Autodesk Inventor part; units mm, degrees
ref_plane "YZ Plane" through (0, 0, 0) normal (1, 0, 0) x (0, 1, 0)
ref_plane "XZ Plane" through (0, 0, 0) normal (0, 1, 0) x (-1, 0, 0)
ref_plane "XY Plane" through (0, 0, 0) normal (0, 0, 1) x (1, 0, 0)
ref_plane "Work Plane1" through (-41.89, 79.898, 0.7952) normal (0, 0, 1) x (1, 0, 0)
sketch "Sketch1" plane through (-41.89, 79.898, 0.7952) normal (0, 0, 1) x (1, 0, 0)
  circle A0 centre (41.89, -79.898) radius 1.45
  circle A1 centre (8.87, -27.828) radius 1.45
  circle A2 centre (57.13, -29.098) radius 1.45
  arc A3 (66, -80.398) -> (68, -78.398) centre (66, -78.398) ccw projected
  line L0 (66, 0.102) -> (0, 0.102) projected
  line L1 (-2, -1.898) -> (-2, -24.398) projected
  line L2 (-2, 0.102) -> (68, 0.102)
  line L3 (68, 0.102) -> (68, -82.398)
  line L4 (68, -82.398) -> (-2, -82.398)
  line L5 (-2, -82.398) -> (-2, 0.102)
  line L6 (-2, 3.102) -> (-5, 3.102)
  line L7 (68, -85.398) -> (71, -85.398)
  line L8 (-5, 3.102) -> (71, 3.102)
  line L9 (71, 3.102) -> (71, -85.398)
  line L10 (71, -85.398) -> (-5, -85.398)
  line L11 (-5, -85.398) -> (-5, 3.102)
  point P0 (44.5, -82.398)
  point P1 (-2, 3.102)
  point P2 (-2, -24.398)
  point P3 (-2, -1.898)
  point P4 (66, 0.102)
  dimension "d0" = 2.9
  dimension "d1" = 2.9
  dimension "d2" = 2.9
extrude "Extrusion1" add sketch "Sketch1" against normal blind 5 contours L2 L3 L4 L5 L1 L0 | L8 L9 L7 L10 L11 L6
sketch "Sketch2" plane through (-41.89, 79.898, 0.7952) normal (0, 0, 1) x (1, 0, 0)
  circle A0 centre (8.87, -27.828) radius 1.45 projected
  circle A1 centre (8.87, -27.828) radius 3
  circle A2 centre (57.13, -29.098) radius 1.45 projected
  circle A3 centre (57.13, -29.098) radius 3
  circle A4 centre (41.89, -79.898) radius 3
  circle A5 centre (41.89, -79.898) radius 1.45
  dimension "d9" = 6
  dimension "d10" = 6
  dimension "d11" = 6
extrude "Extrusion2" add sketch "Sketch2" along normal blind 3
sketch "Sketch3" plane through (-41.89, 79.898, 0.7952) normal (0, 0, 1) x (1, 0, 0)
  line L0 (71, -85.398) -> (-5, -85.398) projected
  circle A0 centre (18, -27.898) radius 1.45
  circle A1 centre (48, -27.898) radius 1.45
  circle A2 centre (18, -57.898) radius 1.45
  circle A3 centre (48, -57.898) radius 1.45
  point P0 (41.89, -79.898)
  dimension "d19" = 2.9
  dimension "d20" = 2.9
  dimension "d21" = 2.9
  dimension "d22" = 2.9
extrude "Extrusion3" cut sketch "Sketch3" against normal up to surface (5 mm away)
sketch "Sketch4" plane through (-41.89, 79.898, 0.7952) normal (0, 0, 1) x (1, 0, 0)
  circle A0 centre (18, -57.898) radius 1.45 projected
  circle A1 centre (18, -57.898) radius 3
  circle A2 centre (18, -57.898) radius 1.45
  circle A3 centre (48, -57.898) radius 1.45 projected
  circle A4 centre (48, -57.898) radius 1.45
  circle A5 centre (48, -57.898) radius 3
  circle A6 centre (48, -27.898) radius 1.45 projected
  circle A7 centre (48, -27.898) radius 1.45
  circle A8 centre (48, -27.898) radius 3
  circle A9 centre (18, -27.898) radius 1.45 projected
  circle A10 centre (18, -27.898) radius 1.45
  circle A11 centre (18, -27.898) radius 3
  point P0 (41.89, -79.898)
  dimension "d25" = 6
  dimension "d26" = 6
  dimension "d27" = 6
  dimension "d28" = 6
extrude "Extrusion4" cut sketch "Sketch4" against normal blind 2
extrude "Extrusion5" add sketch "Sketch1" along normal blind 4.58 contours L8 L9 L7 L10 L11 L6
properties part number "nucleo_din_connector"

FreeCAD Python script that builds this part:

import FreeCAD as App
import Part
import Sketcher


def add_polygon(sketch, points):
    """Adds a closed chain of lines whose ends are joined by coincident constraints."""
    first, n = sketch.GeometryCount, len(points)
    for a, b in zip(points, points[1:] + points[:1]):
        sketch.addGeometry(Part.LineSegment(App.Vector(*a, 0), App.Vector(*b, 0)), False)
    for i in range(n):
        sketch.addConstraint(Sketcher.Constraint("Coincident", first + i, 2, first + (i + 1) % n, 1))

doc = App.newDocument("Part")
params = doc.addObject("Spreadsheet::Sheet", "Params")
for row, (alias, value) in enumerate([
    ("sketch1_diameter", "2.9 mm"),
    ("sketch1_width", "76 mm"),
    ("sketch1_height", "88.5 mm"),
    ("pad1_length", "5 mm"),
    ("sketch2_diameter", "6 mm"),
    ("sketch2_diameter2", "2.9 mm"),
    ("pad2_length", "3 mm"),
    ("sketch3_diameter", "2.9 mm"),
    ("pocket1_length", "5 mm"),
    ("sketch4_diameter", "6 mm"),
    ("sketch4_diameter2", "2.9 mm"),
    ("pocket2_length", "2 mm"),
    ("sketch5_width", "76 mm"),
    ("sketch5_width2", "70 mm"),
    ("sketch5_height", "88.5 mm"),
    ("sketch5_height2", "82.5 mm"),
    ("pad3_length", "4.58 mm"),
], start=1):
    params.set(f"A{row}", alias)
    params.set(f"B{row}", "=" + value)
    params.setAlias(f"B{row}", alias)

body = doc.addObject("PartDesign::Body", "Body")

# Sketch on XY plane
sketch1 = doc.addObject("Sketcher::SketchObject", "Sketch")
body.addObject(sketch1)
sketch1.AttachmentSupport = (doc.XY_Plane, [""])
sketch1.MapMode = "FlatFace"
sketch1.AttachmentOffset = App.Placement(App.Vector(0, 0, 0.7952), App.Rotation())
add_polygon(sketch1, [(29.1, 83), (-46.9, 83), (-46.9, -5.5), (29.1, -5.5)])  # lines 0-3
sketch1.addGeometry(Part.Circle(App.Vector(0, 0, 0), App.Vector(0, 0, 1), 1.4), False)  # 4
sketch1.addGeometry(Part.Circle(App.Vector(-33, 52.1, 0), App.Vector(0, 0, 1), 1.4), False)  # 5
sketch1.addGeometry(Part.Circle(App.Vector(15.2, 50.8, 0), App.Vector(0, 0, 1), 1.4), False)  # 6
sketch1.addConstraint(Sketcher.Constraint("Horizontal", 0))
sketch1.addConstraint(Sketcher.Constraint("Vertical", 1))
sketch1.addConstraint(Sketcher.Constraint("Horizontal", 2))
sketch1.addConstraint(Sketcher.Constraint("Vertical", 3))
sketch1.addConstraint(Sketcher.Constraint("Coincident", 4, 3, -1, 1))
sketch1.addConstraint(Sketcher.Constraint("Equal", 4, 5))
sketch1.addConstraint(Sketcher.Constraint("Equal", 5, 6))
sketch1.addConstraint(Sketcher.Constraint("Diameter", 4, 2.9))
sketch1.addConstraint(Sketcher.Constraint("DistanceX", 0, 2, 0, 1, 76.0))
sketch1.addConstraint(Sketcher.Constraint("DistanceY", 1, 2, 1, 1, 88.5))
sketch1.addConstraint(Sketcher.Constraint("DistanceY", -1, 1, 0, 2, 83.0))
sketch1.addConstraint(Sketcher.Constraint("DistanceY", -1, 1, 6, 3, 50.8))
sketch1.addConstraint(Sketcher.Constraint("DistanceX", 5, 3, -1, 1, 33.02))
sketch1.addConstraint(Sketcher.Constraint("DistanceY", -1, 1, 5, 3, 52.07))
sketch1.addConstraint(Sketcher.Constraint("DistanceX", -1, 1, 6, 3, 15.24))
sketch1.addConstraint(Sketcher.Constraint("DistanceX", 0, 2, -1, 1, 46.89))
sketch1.setExpression("Constraints[11]", "Params.sketch1_diameter")
sketch1.setExpression("Constraints[12]", "Params.sketch1_width")
sketch1.setExpression("Constraints[13]", "Params.sketch1_height")
pad1 = doc.addObject("PartDesign::Pad", "Pad")
body.addObject(pad1)
pad1.Profile = sketch1
pad1.setExpression("Length", "Params.pad1_length")
pad1.Reversed = True

# Sketch on XY plane
sketch2 = doc.addObject("Sketcher::SketchObject", "Sketch001")
body.addObject(sketch2)
sketch2.AttachmentSupport = (doc.XY_Plane, [""])
sketch2.MapMode = "FlatFace"
sketch2.AttachmentOffset = App.Placement(App.Vector(0, 0, 0.7952), App.Rotation())
sketch2.addGeometry(Part.Circle(App.Vector(-33, 52.1, 0), App.Vector(0, 0, 1), 3), False)
sketch2.addGeometry(Part.Circle(App.Vector(-33, 52.1, 0), App.Vector(0, 0, 1), 1.4), False)
sketch2.addGeometry(Part.Circle(App.Vector(15.2, 50.8, 0), App.Vector(0, 0, 1), 3), False)
sketch2.addGeometry(Part.Circle(App.Vector(15.2, 50.8, 0), App.Vector(0, 0, 1), 1.4), False)
sketch2.addGeometry(Part.Circle(App.Vector(0, 0, 0), App.Vector(0, 0, 1), 3), False)
sketch2.addGeometry(Part.Circle(App.Vector(0, 0, 0), App.Vector(0, 0, 1), 1.4), False)
sketch2.addConstraint(Sketcher.Constraint("Coincident", 4, 3, -1, 1))
sketch2.addConstraint(Sketcher.Constraint("Coincident", 5, 3, -1, 1))
sketch2.addConstraint(Sketcher.Constraint("Coincident", 1, 3, 0, 3))
sketch2.addConstraint(Sketcher.Constraint("Coincident", 3, 3, 2, 3))
sketch2.addConstraint(Sketcher.Constraint("Equal", 0, 2))
sketch2.addConstraint(Sketcher.Constraint("Equal", 1, 3))
sketch2.addConstraint(Sketcher.Constraint("Equal", 2, 4))
sketch2.addConstraint(Sketcher.Constraint("Equal", 3, 5))
sketch2.addConstraint(Sketcher.Constraint("Diameter", 0, 6.0))
sketch2.addConstraint(Sketcher.Constraint("Diameter", 1, 2.9))
sketch2.addConstraint(Sketcher.Constraint("DistanceY", -1, 1, 2, 3, 50.8))
sketch2.addConstraint(Sketcher.Constraint("DistanceX", 0, 3, -1, 1, 33.02))
sketch2.addConstraint(Sketcher.Constraint("DistanceY", -1, 1, 0, 3, 52.07))
sketch2.addConstraint(Sketcher.Constraint("DistanceX", -1, 1, 2, 3, 15.24))
sketch2.setExpression("Constraints[8]", "Params.sketch2_diameter")
sketch2.setExpression("Constraints[9]", "Params.sketch2_diameter2")
pad2 = doc.addObject("PartDesign::Pad", "Pad001")
body.addObject(pad2)
pad2.Profile = sketch2
pad2.setExpression("Length", "Params.pad2_length")

# Sketch on XY plane
sketch3 = doc.addObject("Sketcher::SketchObject", "Sketch002")
body.addObject(sketch3)
sketch3.AttachmentSupport = (doc.XY_Plane, [""])
sketch3.MapMode = "FlatFace"
sketch3.AttachmentOffset = App.Placement(App.Vector(0, 0, 0.7952), App.Rotation())
sketch3.addGeometry(Part.Circle(App.Vector(-23.9, 52, 0), App.Vector(0, 0, 1), 1.4), False)
sketch3.addGeometry(Part.Circle(App.Vector(6.1, 52, 0), App.Vector(0, 0, 1), 1.4), False)
sketch3.addGeometry(Part.Circle(App.Vector(-23.9, 22, 0), App.Vector(0, 0, 1), 1.4), False)
sketch3.addGeometry(Part.Circle(App.Vector(6.1, 22, 0), App.Vector(0, 0, 1), 1.4), False)
sketch3.addConstraint(Sketcher.Constraint("Equal", 0, 1))
sketch3.addConstraint(Sketcher.Constraint("Equal", 1, 2))
sketch3.addConstraint(Sketcher.Constraint("Equal", 2, 3))
sketch3.addConstraint(Sketcher.Constraint("Horizontal", 0, 3, 1, 3))
sketch3.addConstraint(Sketcher.Constraint("Horizontal", 2, 3, 3, 3))
sketch3.addConstraint(Sketcher.Constraint("Vertical", 0, 3, 2, 3))
sketch3.addConstraint(Sketcher.Constraint("Vertical", 1, 3, 3, 3))
sketch3.addConstraint(Sketcher.Constraint("Diameter", 0, 2.9))
sketch3.addConstraint(Sketcher.Constraint("DistanceY", -1, 1, 0, 3, 52.0))
sketch3.addConstraint(Sketcher.Constraint("DistanceY", -1, 1, 2, 3, 22.0))
sketch3.addConstraint(Sketcher.Constraint("DistanceX", 0, 3, 1, 3, 30.0))
sketch3.addConstraint(Sketcher.Constraint("DistanceX", 0, 3, -1, 1, 23.89))
sketch3.setExpression("Constraints[7]", "Params.sketch3_diameter")
pocket1 = doc.addObject("PartDesign::Pocket", "Pocket")
body.addObject(pocket1)
pocket1.Profile = sketch3
pocket1.setExpression("Length", "Params.pocket1_length")

# Sketch on XY plane
sketch4 = doc.addObject("Sketcher::SketchObject", "Sketch003")
body.addObject(sketch4)
sketch4.AttachmentSupport = (doc.XY_Plane, [""])
sketch4.MapMode = "FlatFace"
sketch4.AttachmentOffset = App.Placement(App.Vector(0, 0, 0.7952), App.Rotation())
sketch4.addGeometry(Part.Circle(App.Vector(-23.9, 22, 0), App.Vector(0, 0, 1), 3), False)
sketch4.addGeometry(Part.Circle(App.Vector(-23.9, 22, 0), App.Vector(0, 0, 1), 1.4), False)
sketch4.addGeometry(Part.Circle(App.Vector(6.1, 22, 0), App.Vector(0, 0, 1), 3), False)
sketch4.addGeometry(Part.Circle(App.Vector(6.1, 22, 0), App.Vector(0, 0, 1), 1.4), False)
sketch4.addGeometry(Part.Circle(App.Vector(6.1, 52, 0), App.Vector(0, 0, 1), 3), False)
sketch4.addGeometry(Part.Circle(App.Vector(6.1, 52, 0), App.Vector(0, 0, 1), 1.4), False)
sketch4.addGeometry(Part.Circle(App.Vector(-23.9, 52, 0), App.Vector(0, 0, 1), 3), False)
sketch4.addGeometry(Part.Circle(App.Vector(-23.9, 52, 0), App.Vector(0, 0, 1), 1.4), False)
sketch4.addConstraint(Sketcher.Constraint("Coincident", 1, 3, 0, 3))
sketch4.addConstraint(Sketcher.Constraint("Coincident", 3, 3, 2, 3))
sketch4.addConstraint(Sketcher.Constraint("Coincident", 5, 3, 4, 3))
sketch4.addConstraint(Sketcher.Constraint("Coincident", 7, 3, 6, 3))
sketch4.addConstraint(Sketcher.Constraint("Equal", 0, 2))
sketch4.addConstraint(Sketcher.Constraint("Equal", 1, 3))
sketch4.addConstraint(Sketcher.Constraint("Equal", 2, 4))
sketch4.addConstraint(Sketcher.Constraint("Equal", 3, 5))
sketch4.addConstraint(Sketcher.Constraint("Equal", 4, 6))
sketch4.addConstraint(Sketcher.Constraint("Equal", 5, 7))
sketch4.addConstraint(Sketcher.Constraint("Horizontal", 1, 3, 2, 3))
sketch4.addConstraint(Sketcher.Constraint("Horizontal", 5, 3, 6, 3))
sketch4.addConstraint(Sketcher.Constraint("Vertical", 3, 3, 4, 3))
sketch4.addConstraint(Sketcher.Constraint("Vertical", 1, 3, 6, 3))
sketch4.addConstraint(Sketcher.Constraint("Diameter", 0, 6.0))
sketch4.addConstraint(Sketcher.Constraint("Diameter", 1, 2.9))
sketch4.addConstraint(Sketcher.Constraint("DistanceY", -1, 1, 0, 3, 22.0))
sketch4.addConstraint(Sketcher.Constraint("DistanceY", -1, 1, 4, 3, 52.0))
sketch4.addConstraint(Sketcher.Constraint("DistanceX", 0, 3, 2, 3, 30.0))
sketch4.addConstraint(Sketcher.Constraint("DistanceX", 0, 3, -1, 1, 23.89))
sketch4.setExpression("Constraints[14]", "Params.sketch4_diameter")
sketch4.setExpression("Constraints[15]", "Params.sketch4_diameter2")
pocket2 = doc.addObject("PartDesign::Pocket", "Pocket001")
body.addObject(pocket2)
pocket2.Profile = sketch4
pocket2.setExpression("Length", "Params.pocket2_length")

# Sketch on XY plane
sketch5 = doc.addObject("Sketcher::SketchObject", "Sketch004")
body.addObject(sketch5)
sketch5.AttachmentSupport = (doc.XY_Plane, [""])
sketch5.MapMode = "FlatFace"
sketch5.AttachmentOffset = App.Placement(App.Vector(0, 0, 0.7952), App.Rotation())
add_polygon(sketch5, [(29, 83), (-47, 83), (-47, -6), (29, -6)])  # lines 0-3
add_polygon(sketch5, [(-44, 80), (26, 80), (26, -2), (-44, -2)])  # lines 4-7
sketch5.addConstraint(Sketcher.Constraint("Horizontal", 0))
sketch5.addConstraint(Sketcher.Constraint("Vertical", 1))
sketch5.addConstraint(Sketcher.Constraint("Horizontal", 2))
sketch5.addConstraint(Sketcher.Constraint("Vertical", 3))
sketch5.addConstraint(Sketcher.Constraint("Horizontal", 4))
sketch5.addConstraint(Sketcher.Constraint("Vertical", 5))
sketch5.addConstraint(Sketcher.Constraint("Horizontal", 6))
sketch5.addConstraint(Sketcher.Constraint("Vertical", 7))
sketch5.addConstraint(Sketcher.Constraint("DistanceX", 0, 2, 0, 1, 76.0))
sketch5.addConstraint(Sketcher.Constraint("DistanceX", 4, 1, 4, 2, 70.0))
sketch5.addConstraint(Sketcher.Constraint("DistanceY", 1, 2, 1, 1, 88.5))
sketch5.addConstraint(Sketcher.Constraint("DistanceY", 5, 2, 5, 1, 82.5))
sketch5.addConstraint(Sketcher.Constraint("DistanceY", -1, 1, 0, 2, 83.0))
sketch5.addConstraint(Sketcher.Constraint("DistanceY", -1, 1, 4, 2, 80.0))
sketch5.addConstraint(Sketcher.Constraint("DistanceX", 4, 2, 3, 2, 3.0))
sketch5.addConstraint(Sketcher.Constraint("DistanceX", 0, 2, -1, 1, 46.89))
sketch5.setExpression("Constraints[16]", "Params.sketch5_width")
sketch5.setExpression("Constraints[17]", "Params.sketch5_width2")
sketch5.setExpression("Constraints[18]", "Params.sketch5_height")
sketch5.setExpression("Constraints[19]", "Params.sketch5_height2")
pad3 = doc.addObject("PartDesign::Pad", "Pad002")
body.addObject(pad3)
pad3.Profile = sketch5
pad3.setExpression("Length", "Params.pad3_length")

doc.recompute()
